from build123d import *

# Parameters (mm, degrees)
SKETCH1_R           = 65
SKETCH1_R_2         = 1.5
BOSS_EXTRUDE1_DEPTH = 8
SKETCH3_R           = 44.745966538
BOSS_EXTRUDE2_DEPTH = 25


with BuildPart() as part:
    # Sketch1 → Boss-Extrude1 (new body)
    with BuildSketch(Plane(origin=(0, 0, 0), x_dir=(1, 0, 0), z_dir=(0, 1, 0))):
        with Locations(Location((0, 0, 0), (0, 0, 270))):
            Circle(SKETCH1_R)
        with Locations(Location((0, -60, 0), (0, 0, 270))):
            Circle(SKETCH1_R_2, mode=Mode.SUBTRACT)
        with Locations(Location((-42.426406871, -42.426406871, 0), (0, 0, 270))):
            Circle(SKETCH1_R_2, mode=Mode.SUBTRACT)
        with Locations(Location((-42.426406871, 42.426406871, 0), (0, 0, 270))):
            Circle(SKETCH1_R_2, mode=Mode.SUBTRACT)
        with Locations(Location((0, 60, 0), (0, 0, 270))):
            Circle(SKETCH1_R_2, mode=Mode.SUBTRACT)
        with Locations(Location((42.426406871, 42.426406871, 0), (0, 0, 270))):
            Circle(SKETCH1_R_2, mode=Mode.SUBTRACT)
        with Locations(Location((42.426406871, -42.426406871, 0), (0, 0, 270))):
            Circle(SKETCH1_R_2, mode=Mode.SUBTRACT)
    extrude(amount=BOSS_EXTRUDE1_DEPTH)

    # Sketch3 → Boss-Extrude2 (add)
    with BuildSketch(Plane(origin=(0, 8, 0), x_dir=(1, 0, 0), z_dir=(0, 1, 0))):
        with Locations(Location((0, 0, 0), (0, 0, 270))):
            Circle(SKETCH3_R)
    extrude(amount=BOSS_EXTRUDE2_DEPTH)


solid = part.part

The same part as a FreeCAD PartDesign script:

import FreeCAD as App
import Part
import Sketcher
Q = App.Units.Quantity

doc = App.newDocument("Part")
params = doc.addObject("Spreadsheet::Sheet", "Params")
for row, (alias, value) in enumerate([
    ("sketch1_diameter", "130 mm"),
    ("sketch1_diameter2", "3 mm"),
    ("pad1_length", "8 mm"),
    ("pad2_length", "25 mm"),
], start=1):
    params.set(f"A{row}", alias)
    params.set(f"B{row}", "=" + value)
    params.setAlias(f"B{row}", alias)

body = doc.addObject("PartDesign::Body", "Body")

# Sketch on XZ plane
sketch1 = body.newObject("Sketcher::SketchObject", "Sketch")
sketch1.AttachmentSupport = (doc.getObject("XZ_Plane"), [""])
sketch1.MapMode = "FlatFace"
sketch1.addGeometry([
    Part.Circle(App.Vector(0, 0, 0), App.Vector(0, 0, 1), 65),  # 0
    Part.Circle(App.Vector(-42.4, -42.4, 0), App.Vector(0, 0, 1), 1.5),  # 1
    Part.Circle(App.Vector(0, -60, 0), App.Vector(0, 0, 1), 1.5),  # 2
    Part.Circle(App.Vector(-42.4, 42.4, 0), App.Vector(0, 0, 1), 1.5),  # 3
    Part.Circle(App.Vector(42.4, -42.4, 0), App.Vector(0, 0, 1), 1.5),  # 4
    Part.Circle(App.Vector(0, 60, 0), App.Vector(0, 0, 1), 1.5),  # 5
    Part.Circle(App.Vector(42.4, 42.4, 0), App.Vector(0, 0, 1), 1.5),  # 6
], False)
sketch1.addConstraint([
    Sketcher.Constraint("Coincident", 0, 3, -1, 1),
    Sketcher.Constraint("Equal", 1, 2),
    Sketcher.Constraint("Equal", 2, 3),
    Sketcher.Constraint("Equal", 3, 4),
    Sketcher.Constraint("Equal", 4, 5),
    Sketcher.Constraint("Equal", 5, 6),
    Sketcher.Constraint("Symmetric", 3, 3, 4, 3, -1, 1),
    Sketcher.Constraint("Symmetric", 2, 3, 5, 3, -1, 1),
    Sketcher.Constraint("Symmetric", 1, 3, 6, 3, -1, 1),
    Sketcher.Constraint("Symmetric", 1, 3, 4, 3, -2),
    Sketcher.Constraint("PointOnObject", 2, 3, -2),
    Sketcher.Constraint("Diameter", 0, Q("130 mm")),
    Sketcher.Constraint("Diameter", 1, Q("3 mm")),
    Sketcher.Constraint("DistanceY", 2, 3, -1, 1, Q("60 mm")),
    Sketcher.Constraint("DistanceX", 1, 3, -1, 1, Q("42.426407 mm")),
    Sketcher.Constraint("DistanceY", 1, 3, -1, 1, Q("42.426407 mm")),
])
sketch1.setExpression("Constraints[11]", "Params.sketch1_diameter")
sketch1.setExpression("Constraints[12]", "Params.sketch1_diameter2")
pad1 = body.newObject("PartDesign::Pad", "Pad")
pad1.Profile = sketch1
pad1.setExpression("Length", "Params.pad1_length")
pad1.Reversed = True

# Sketch on XZ plane
sketch2 = body.newObject("Sketcher::SketchObject", "Sketch001")
sketch2.AttachmentSupport = (doc.getObject("XZ_Plane"), [""])
sketch2.MapMode = "FlatFace"
sketch2.AttachmentOffset = App.Placement(App.Vector(0, 0, -8), App.Rotation())
sketch2.addGeometry(Part.Circle(App.Vector(0, 0, 0), App.Vector(0, 0, 1), 45), False)
sketch2.addConstraint([
    Sketcher.Constraint("Coincident", 0, 3, -1, 1),
    Sketcher.Constraint("Diameter", 0, Q("89.491933 mm")),
])
pad2 = body.newObject("PartDesign::Pad", "Pad001")
pad2.Profile = sketch2
pad2.setExpression("Length", "Params.pad2_length")
pad2.Reversed = True

doc.recompute()
